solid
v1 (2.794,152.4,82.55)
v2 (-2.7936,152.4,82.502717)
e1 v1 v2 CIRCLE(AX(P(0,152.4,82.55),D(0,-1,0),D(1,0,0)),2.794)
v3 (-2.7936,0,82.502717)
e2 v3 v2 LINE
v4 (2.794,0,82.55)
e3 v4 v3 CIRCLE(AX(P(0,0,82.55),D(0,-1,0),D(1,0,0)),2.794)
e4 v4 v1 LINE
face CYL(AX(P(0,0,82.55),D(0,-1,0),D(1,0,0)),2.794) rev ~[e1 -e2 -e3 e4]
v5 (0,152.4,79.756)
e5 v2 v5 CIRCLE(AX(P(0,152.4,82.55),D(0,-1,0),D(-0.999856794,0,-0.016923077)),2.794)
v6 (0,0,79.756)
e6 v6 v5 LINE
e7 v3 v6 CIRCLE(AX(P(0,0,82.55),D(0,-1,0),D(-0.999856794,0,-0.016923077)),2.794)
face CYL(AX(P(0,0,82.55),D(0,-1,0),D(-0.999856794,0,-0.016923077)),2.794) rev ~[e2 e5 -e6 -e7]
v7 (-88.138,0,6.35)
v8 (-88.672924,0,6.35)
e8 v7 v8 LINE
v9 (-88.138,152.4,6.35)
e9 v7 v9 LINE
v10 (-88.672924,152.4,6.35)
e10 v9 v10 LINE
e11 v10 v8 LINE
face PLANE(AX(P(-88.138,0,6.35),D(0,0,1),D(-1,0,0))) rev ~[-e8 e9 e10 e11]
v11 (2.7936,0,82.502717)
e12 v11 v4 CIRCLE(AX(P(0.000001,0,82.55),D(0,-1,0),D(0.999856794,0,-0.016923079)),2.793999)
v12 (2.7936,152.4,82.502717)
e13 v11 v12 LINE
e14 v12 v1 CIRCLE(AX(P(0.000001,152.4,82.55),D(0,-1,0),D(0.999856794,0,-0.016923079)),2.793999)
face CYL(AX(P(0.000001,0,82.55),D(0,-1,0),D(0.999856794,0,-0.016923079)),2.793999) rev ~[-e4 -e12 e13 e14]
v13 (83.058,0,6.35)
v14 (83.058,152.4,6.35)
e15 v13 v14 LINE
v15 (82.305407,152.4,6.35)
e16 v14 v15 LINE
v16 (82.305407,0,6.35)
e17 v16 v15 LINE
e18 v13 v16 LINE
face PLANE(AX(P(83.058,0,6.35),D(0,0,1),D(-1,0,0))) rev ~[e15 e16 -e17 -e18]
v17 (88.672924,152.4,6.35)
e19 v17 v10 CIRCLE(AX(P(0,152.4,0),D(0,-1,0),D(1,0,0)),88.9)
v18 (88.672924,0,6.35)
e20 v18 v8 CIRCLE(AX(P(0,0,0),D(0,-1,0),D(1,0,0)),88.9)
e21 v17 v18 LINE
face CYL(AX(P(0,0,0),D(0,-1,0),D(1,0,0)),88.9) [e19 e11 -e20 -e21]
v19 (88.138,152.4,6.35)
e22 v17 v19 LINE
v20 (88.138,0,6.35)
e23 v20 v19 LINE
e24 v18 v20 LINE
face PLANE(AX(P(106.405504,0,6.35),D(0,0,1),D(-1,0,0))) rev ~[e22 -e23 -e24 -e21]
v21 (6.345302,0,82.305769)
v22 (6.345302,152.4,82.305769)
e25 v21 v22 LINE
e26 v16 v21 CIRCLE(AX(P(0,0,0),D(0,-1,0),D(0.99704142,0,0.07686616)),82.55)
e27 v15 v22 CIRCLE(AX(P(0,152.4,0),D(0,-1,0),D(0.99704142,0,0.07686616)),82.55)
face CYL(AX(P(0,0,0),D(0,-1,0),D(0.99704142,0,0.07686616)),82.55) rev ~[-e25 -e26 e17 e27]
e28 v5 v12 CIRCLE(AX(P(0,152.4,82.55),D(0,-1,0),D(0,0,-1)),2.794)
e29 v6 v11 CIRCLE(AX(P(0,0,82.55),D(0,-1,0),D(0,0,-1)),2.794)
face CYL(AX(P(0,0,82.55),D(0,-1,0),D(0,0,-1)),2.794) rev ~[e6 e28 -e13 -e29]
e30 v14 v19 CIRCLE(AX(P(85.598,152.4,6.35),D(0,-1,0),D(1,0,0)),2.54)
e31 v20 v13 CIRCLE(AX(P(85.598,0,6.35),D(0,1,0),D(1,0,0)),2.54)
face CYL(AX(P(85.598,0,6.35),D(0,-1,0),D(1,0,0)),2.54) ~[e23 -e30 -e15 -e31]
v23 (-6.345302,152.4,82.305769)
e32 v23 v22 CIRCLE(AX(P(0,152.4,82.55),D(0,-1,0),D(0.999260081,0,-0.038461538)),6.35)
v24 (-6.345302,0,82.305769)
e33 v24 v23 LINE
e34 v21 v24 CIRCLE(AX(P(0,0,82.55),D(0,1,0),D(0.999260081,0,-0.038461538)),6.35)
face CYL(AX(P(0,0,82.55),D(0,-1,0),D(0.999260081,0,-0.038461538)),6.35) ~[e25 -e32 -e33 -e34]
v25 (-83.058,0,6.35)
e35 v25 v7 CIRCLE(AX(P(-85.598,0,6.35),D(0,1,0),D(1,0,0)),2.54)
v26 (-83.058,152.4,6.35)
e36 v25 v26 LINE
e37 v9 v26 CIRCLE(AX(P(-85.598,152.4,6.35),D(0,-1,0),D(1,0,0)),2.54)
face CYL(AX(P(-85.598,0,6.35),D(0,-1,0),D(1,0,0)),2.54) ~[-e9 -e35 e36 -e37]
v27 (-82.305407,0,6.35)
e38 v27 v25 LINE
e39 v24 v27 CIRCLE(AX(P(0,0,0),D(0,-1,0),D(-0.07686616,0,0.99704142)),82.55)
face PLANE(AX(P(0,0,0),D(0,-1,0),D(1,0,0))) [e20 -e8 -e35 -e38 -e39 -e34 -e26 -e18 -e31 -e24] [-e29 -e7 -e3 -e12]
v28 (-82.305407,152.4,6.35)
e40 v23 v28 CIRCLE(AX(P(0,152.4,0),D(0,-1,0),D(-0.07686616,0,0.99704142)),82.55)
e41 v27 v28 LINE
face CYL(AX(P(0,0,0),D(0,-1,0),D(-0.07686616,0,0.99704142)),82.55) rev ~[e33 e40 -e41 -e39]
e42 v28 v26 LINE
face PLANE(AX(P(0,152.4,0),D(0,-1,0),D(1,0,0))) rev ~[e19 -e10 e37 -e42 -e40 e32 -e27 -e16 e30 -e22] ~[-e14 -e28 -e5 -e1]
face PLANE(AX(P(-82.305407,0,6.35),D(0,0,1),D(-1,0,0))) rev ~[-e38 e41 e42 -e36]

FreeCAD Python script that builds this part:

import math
import FreeCAD as App
import Part
import Sketcher

V = App.Vector
Q = App.Units.Quantity

doc = App.newDocument("Part")
params = doc.addObject("Spreadsheet::Sheet", "Params")
for row, (alias, value) in enumerate([
    ("sketch1_diameter", "7 in"),
    ("pad1_length", "6 in"),
    ("sketch2_radius", "0.25 in"),
    ("sketch2_radius2", "3.25 in"),
    ("sketch3_radius", "0.11 in"),
    ("sketch4_radius", "0.1 in"),
    ("sketch4_radius2", "0.25 in"),
    ("sketch4_radius3", "3.25 in"),
    ("sketch4_width", "0.03 in"),
    ("sketch4_height", "0.25 in"),
], start=1):
    params.set(f"A{row}", alias)
    params.set(f"B{row}", "=" + value)
    params.setAlias(f"B{row}", alias)

body = doc.addObject("PartDesign::Body", "Body")

sketch1 = body.newObject("Sketcher::SketchObject", "Sketch")
sketch1.AttachmentSupport = (doc.getObject("XZ_Plane"), [""])
sketch1.MapMode = "FlatFace"
sketch1.addGeometry(Part.Circle(V(0, 0, 0), V(0, 0, 1), 88.9), False)
sketch1.addConstraint([
    Sketcher.Constraint("Coincident", 0, 3, -1, 1),
    Sketcher.Constraint("Diameter", 0, Q("7 in")),
])
sketch1.setExpression("Constraints[1]", "Params.sketch1_diameter")
pad1 = body.newObject("PartDesign::Pad", "Pad")
pad1.Profile = sketch1
pad1.setExpression("Length", "Params.pad1_length")
pad1.Reversed = True

sketch2 = body.newObject("Sketcher::SketchObject", "Sketch001")
sketch2.AttachmentSupport = (doc.getObject("XZ_Plane"), [""])
sketch2.MapMode = "FlatFace"
sketch2.addGeometry([
    Part.ArcOfCircle(Part.Circle(V(0, 82.55, 0), V(0, 0, 1), 6.35), math.radians(-177.795772), math.radians(-2.204228)),
    Part.ArcOfCircle(Part.Circle(V(0, 0, 0), V(0, 0, 1), 82.55), math.radians(94.408455), math.radians(175.591545)),
    Part.ArcOfCircle(Part.Circle(V(-82.55, 0, 0), V(0, 0, 1), 6.35), math.radians(0), math.radians(87.795772)),
    Part.ArcOfCircle(Part.Circle(V(-82.55, 0, 0), V(0, 0, 1), 6.35), math.radians(-87.795772), math.radians(0)),
    Part.ArcOfCircle(Part.Circle(V(0, 0, 0), V(0, 0, 1), 82.55), math.radians(-175.591545), math.radians(-94.408455)),
    Part.ArcOfCircle(Part.Circle(V(0, -82.55, 0), V(0, 0, 1), 6.35), math.radians(2.204228), math.radians(177.795772)),
    Part.ArcOfCircle(Part.Circle(V(0, 0, 0), V(0, 0, 1), 82.55), math.radians(-85.591545), math.radians(-4.408455)),
    Part.ArcOfCircle(Part.Circle(V(82.55, 0, 0), V(0, 0, 1), 6.35), math.radians(92.204228), math.radians(267.795772)),
    Part.ArcOfCircle(Part.Circle(V(0, 0, 0), V(0, 0, 1), 82.55), math.radians(4.408455), math.radians(85.591545)),
], False)
sketch2.addConstraint([
    Sketcher.Constraint("Coincident", 0, 1, 1, 1),
    Sketcher.Constraint("Coincident", 1, 2, 2, 2),
    Sketcher.Constraint("Tangent", 2, 1, 3, 2),
    Sketcher.Constraint("Coincident", 3, 1, 4, 1),
    Sketcher.Constraint("Coincident", 4, 2, 5, 2),
    Sketcher.Constraint("Coincident", 5, 1, 6, 1),
    Sketcher.Constraint("Coincident", 6, 2, 7, 2),
    Sketcher.Constraint("Coincident", 7, 1, 8, 1),
    Sketcher.Constraint("Coincident", 8, 2, 0, 2),
    Sketcher.Constraint("Coincident", 1, 3, -1, 1),
    Sketcher.Constraint("Coincident", 4, 3, -1, 1),
    Sketcher.Constraint("Coincident", 6, 3, -1, 1),
    Sketcher.Constraint("Coincident", 8, 3, -1, 1),
    Sketcher.Constraint("Equal", 0, 2),
    Sketcher.Constraint("Equal", 2, 3),
    Sketcher.Constraint("Equal", 1, 4),
    Sketcher.Constraint("Equal", 3, 5),
    Sketcher.Constraint("Equal", 4, 6),
    Sketcher.Constraint("Equal", 5, 7),
    Sketcher.Constraint("Equal", 6, 8),
    Sketcher.Constraint("Symmetric", 0, 3, 5, 3, -1, 1),
    Sketcher.Constraint("Symmetric", 2, 3, 7, 3, -1, 1),
    Sketcher.Constraint("PointOnObject", 0, 3, -2),
    Sketcher.Constraint("PointOnObject", 2, 3, -1),
    Sketcher.Constraint("PointOnObject", 2, 1, -1),
    Sketcher.Constraint("Radius", 0, Q("0.25 in")),
    Sketcher.Constraint("Radius", 1, Q("3.25 in")),
    Sketcher.Constraint("DistanceX", 2, 1, -1, 1, Q("3 in")),
    Sketcher.Constraint("DistanceY", 5, 3, 0, 3, Q("6.5 in")),
])
sketch2.setExpression("Constraints[25]", "Params.sketch2_radius")
sketch2.setExpression("Constraints[26]", "Params.sketch2_radius2")
pocket1 = body.newObject("PartDesign::Pocket", "Pocket")
pocket1.Profile = sketch2
pocket1.Type = "ThroughAll"

sketch3 = body.newObject("Sketcher::SketchObject", "Sketch002")
sketch3.AttachmentSupport = (doc.getObject("XZ_Plane"), [""])
sketch3.MapMode = "FlatFace"
sketch3.addGeometry([
    Part.ArcOfCircle(Part.Circle(V(0, 82.55, 0), V(0, 0, 1), 2.794), math.radians(-179.030333), math.radians(-90)),
    Part.ArcOfCircle(Part.Circle(V(0, 82.55, 0), V(0, 0, 1), 2.794), math.radians(-90), math.radians(-0.969667)),
    Part.ArcOfCircle(Part.Circle(V(0.000001, 82.55, 0), V(0, 0, 1), 2.793999), math.radians(-0.969667), math.radians(0)),
    Part.ArcOfCircle(Part.Circle(V(0, 82.55, 0), V(0, 0, 1), 2.794), math.radians(0), math.radians(180.969667)),
    Part.ArcOfCircle(Part.Circle(V(-82.55, 0, 0), V(0, 0, 1), 2.794), math.radians(89.030333), math.radians(270.969667)),
    Part.ArcOfCircle(Part.Circle(V(-82.55, 0, 0), V(0, 0, 1), 2.794), math.radians(-89.030333), math.radians(0)),
    Part.ArcOfCircle(Part.Circle(V(-82.55, 0, 0), V(0, 0, 1), 2.794), math.radians(0), math.radians(89.030333)),
    Part.ArcOfCircle(Part.Circle(V(82.55, 0, 0), V(0, 0, 1), 2.794), math.radians(180), math.radians(269.030333)),
    Part.ArcOfCircle(Part.Circle(V(82.55, 0, 0), V(0, 0, 1), 2.794), math.radians(-90.969667), math.radians(0)),
    Part.ArcOfCircle(Part.Circle(V(82.55, 0, 0), V(0, 0, 1), 2.794), math.radians(0), math.radians(90.969667)),
    Part.ArcOfCircle(Part.Circle(V(82.55, 0, 0), V(0, 0, 1), 2.794), math.radians(90.969667), math.radians(180)),
    Part.ArcOfCircle(Part.Circle(V(0.000001, -82.55, 0), V(0, 0, 1), 2.793999), math.radians(0), math.radians(0.969667)),
    Part.ArcOfCircle(Part.Circle(V(0, -82.55, 0), V(0, 0, 1), 2.794), math.radians(0.969667), math.radians(90)),
    Part.ArcOfCircle(Part.Circle(V(0, -82.55, 0), V(0, 0, 1), 2.794), math.radians(90), math.radians(179.030333)),
    Part.ArcOfCircle(Part.Circle(V(0, -82.55, 0), V(0, 0, 1), 2.794), math.radians(179.030333), math.radians(360)),
], False)
sketch3.addConstraint([
    Sketcher.Constraint("Tangent", 0, 2, 1, 1),
    Sketcher.Constraint("Tangent", 1, 2, 2, 1),
    Sketcher.Constraint("Tangent", 2, 2, 3, 1),
    Sketcher.Constraint("Tangent", 3, 2, 0, 1),
    Sketcher.Constraint("Tangent", 4, 2, 5, 1),
    Sketcher.Constraint("Tangent", 5, 2, 6, 1),
    Sketcher.Constraint("Tangent", 6, 2, 4, 1),
    Sketcher.Constraint("Tangent", 7, 2, 8, 1),
    Sketcher.Constraint("Tangent", 8, 2, 9, 1),
    Sketcher.Constraint("Tangent", 9, 2, 10, 1),
    Sketcher.Constraint("Tangent", 10, 2, 7, 1),
    Sketcher.Constraint("Tangent", 11, 2, 12, 1),
    Sketcher.Constraint("Tangent", 12, 2, 13, 1),
    Sketcher.Constraint("Tangent", 13, 2, 14, 1),
    Sketcher.Constraint("Tangent", 14, 2, 11, 1),
    Sketcher.Constraint("Equal", 0, 1),
    Sketcher.Constraint("Equal", 3, 4),
    Sketcher.Constraint("Equal", 6, 7),
    Sketcher.Constraint("Equal", 7, 8),
    Sketcher.Constraint("Equal", 10, 11),
    Sketcher.Constraint("Equal", 11, 12),
    Sketcher.Constraint("Symmetric", 4, 3, 7, 3, -1, 1),
    Sketcher.Constraint("Symmetric", 0, 3, 11, 3, -1, 1),
    Sketcher.Constraint("Symmetric", 1, 2, 3, 2, -2),
    Sketcher.Constraint("Symmetric", 4, 2, 7, 2, -2),
    Sketcher.Constraint("PointOnObject", 0, 2, -2),
    Sketcher.Constraint("PointOnObject", 5, 2, -1),
    Sketcher.Constraint("PointOnObject", 8, 2, -1),
    Sketcher.Constraint("PointOnObject", 10, 2, -1),
    Sketcher.Constraint("PointOnObject", 12, 2, -2),
    Sketcher.Constraint("Horizontal", 3, 3, 2, 2),
    Sketcher.Constraint("Horizontal", 6, 2, 9, 2),
    Sketcher.Constraint("Horizontal", 11, 2, 13, 2),
    Sketcher.Constraint("Horizontal", 13, 3, 14, 2),
    Sketcher.Constraint("Vertical", 4, 2, 6, 2),
    Sketcher.Constraint("Vertical", 1, 2, 11, 2),
    Sketcher.Constraint("Radius", 0, Q("0.11 in")),
    Sketcher.Constraint("DistanceX", 4, 3, 7, 3, Q("6.5 in")),
    Sketcher.Constraint("DistanceY", -1, 1, 0, 3, Q("3.25 in")),
    Sketcher.Constraint("DistanceX", -1, 1, 1, 2, 2.7936),
    Sketcher.Constraint("DistanceY", 4, 2, -1, 1, 2.7936),
])
sketch3.setExpression("Constraints[36]", "Params.sketch3_radius")
pocket2 = body.newObject("PartDesign::Pocket", "Pocket001")
pocket2.Profile = sketch3
pocket2.Type = "ThroughAll"

sketch4 = body.newObject("Sketcher::SketchObject", "Sketch003")
sketch4.AttachmentSupport = (doc.getObject("XZ_Plane"), [""])
sketch4.MapMode = "FlatFace"
sketch4.addGeometry([
    Part.ArcOfCircle(Part.Circle(V(82.55, 0, 0), V(0, 0, 1), 6.35), math.radians(180), math.radians(267.795772)),
    Part.ArcOfCircle(Part.Circle(V(0, 0, 0), V(0, 0, 1), 82.55), math.radians(-85.591545), math.radians(-4.408455)),
    Part.ArcOfCircle(Part.Circle(V(0, -82.55, 0), V(0, 0, 1), 6.35), math.radians(2.204228), math.radians(177.795772)),
    Part.ArcOfCircle(Part.Circle(V(0, 0, 0), V(0, 0, 1), 82.55), math.radians(-175.591545), math.radians(-94.408455)),
    Part.ArcOfCircle(Part.Circle(V(-82.55, 0, 0), V(0, 0, 1), 6.35), math.radians(-87.795772), math.radians(0)),
    Part.ArcOfCircle(Part.Circle(V(-82.55, 0, 0), V(0, 0, 1), 6.35), math.radians(0), math.radians(87.795772)),
    Part.ArcOfCircle(Part.Circle(V(0.063521, -0.004899, 0), V(0, 0, 1), 82.61371), math.radians(175.588275), math.radians(175.591544)),
    Part.LineSegment(V(-82.305407, 6.35, 0), V(-83.058, 6.35, 0)),
    Part.ArcOfCircle(Part.Circle(V(-85.598, 6.35, 0), V(0, 0, 1), 2.54), math.radians(180), math.radians(360)),
    Part.LineSegment(V(-88.138, 6.35, 0), V(-88.9, 6.35, 0)),
    Part.LineSegment(V(-88.9, 6.35, 0), V(-88.9, 0, 0)),
    Part.LineSegment(V(-88.9, 0, 0), V(-104.893667, -139.878324, 0)),
    Part.LineSegment(V(-104.893667, -139.878324, 0), V(114.975105, -122.241944, 0)),
    Part.LineSegment(V(114.975105, -122.241944, 0), V(179.333255, -117.079571, 0)),
    Part.LineSegment(V(179.333255, -117.079571, 0), V(106.405504, 6.35, 0)),
    Part.LineSegment(V(106.405504, 6.35, 0), V(88.138, 6.35, 0)),
    Part.ArcOfCircle(Part.Circle(V(85.598, 6.35, 0), V(0, 0, 1), 2.54), math.radians(180), math.radians(360)),
    Part.LineSegment(V(83.058, 6.35, 0), V(82.305407, 6.35, 0)),
    Part.ArcOfCircle(Part.Circle(V(-0.063498, -0.004897, 0), V(0, 0, 1), 82.613687), math.radians(4.408456), math.radians(4.411725)),
    Part.ArcOfCircle(Part.Circle(V(82.55, 0, 0), V(0, 0, 1), 6.35), math.radians(92.204228), math.radians(180)),
], False)
sketch4.addConstraint([
    Sketcher.Constraint("Coincident", 0, 2, 1, 2),
    Sketcher.Constraint("Coincident", 1, 1, 2, 1),
    Sketcher.Constraint("Coincident", 2, 2, 3, 2),
    Sketcher.Constraint("Coincident", 3, 1, 4, 1),
    Sketcher.Constraint("Tangent", 4, 2, 5, 1),
    Sketcher.Constraint("Coincident", 5, 2, 6, 2),
    Sketcher.Constraint("Coincident", 6, 1, 7, 1),
    Sketcher.Constraint("Coincident", 7, 2, 8, 2),
    Sketcher.Constraint("Coincident", 8, 1, 9, 1),
    Sketcher.Constraint("Coincident", 9, 2, 10, 1),
    Sketcher.Constraint("Coincident", 10, 2, 11, 1),
    Sketcher.Constraint("Coincident", 11, 2, 12, 1),
    Sketcher.Constraint("Coincident", 12, 2, 13, 1),
    Sketcher.Constraint("Coincident", 13, 2, 14, 1),
    Sketcher.Constraint("Coincident", 14, 2, 15, 1),
    Sketcher.Constraint("Coincident", 15, 2, 16, 2),
    Sketcher.Constraint("Coincident", 16, 1, 17, 1),
    Sketcher.Constraint("Coincident", 17, 2, 18, 2),
    Sketcher.Constraint("Coincident", 18, 1, 19, 1),
    Sketcher.Constraint("Tangent", 19, 2, 0, 1),
    Sketcher.Constraint("Horizontal", 7),
    Sketcher.Constraint("Horizontal", 9),
    Sketcher.Constraint("Vertical", 10),
    Sketcher.Constraint("Horizontal", 15),
    Sketcher.Constraint("Horizontal", 17),
    Sketcher.Constraint("Coincident", 1, 3, -1, 1),
    Sketcher.Constraint("Coincident", 3, 3, -1, 1),
    Sketcher.Constraint("Equal", 0, 2),
    Sketcher.Constraint("Equal", 1, 3),
    Sketcher.Constraint("Equal", 2, 4),
    Sketcher.Constraint("Equal", 4, 5),
    Sketcher.Constraint("Equal", 8, 16),
    Sketcher.Constraint("Equal", 5, 19),
    Sketcher.Constraint("Symmetric", 0, 3, 4, 3, -1, 1),
    Sketcher.Constraint("Symmetric", 8, 3, 16, 3, -2),
    Sketcher.Constraint("Symmetric", 6, 1, 17, 2, -2),
    Sketcher.Constraint("Symmetric", 3, 1, 5, 2, -1),
    Sketcher.Constraint("PointOnObject", 2, 3, -2),
    Sketcher.Constraint("PointOnObject", 4, 2, -1),
    Sketcher.Constraint("PointOnObject", 10, 2, -1),
    Sketcher.Constraint("PointOnObject", 19, 2, -1),
    Sketcher.Constraint("Parallel", 12, 13),
    Sketcher.Constraint("Horizontal", 6, 3, 18, 3),
    Sketcher.Constraint("Horizontal", 16, 3, 6, 1),
    Sketcher.Constraint("Horizontal", 7, 2, 8, 1),
    Sketcher.Constraint("Horizontal", 9, 2, 14, 2),
    Sketcher.Constraint("Radius", 8, Q("0.1 in")),
    Sketcher.Constraint("Radius", 0, Q("0.25 in")),
    Sketcher.Constraint("Radius", 1, Q("3.25 in")),
    Sketcher.Constraint("DistanceX", 4, 2, -1, 1, Q("3 in")),
    Sketcher.Constraint("DistanceX", 9, 2, 9, 1, Q("0.03 in")),
    Sketcher.Constraint("DistanceY", 10, 2, 10, 1, Q("0.25 in")),
    Sketcher.Constraint("DistanceX", 9, 2, -1, 1, Q("3.5 in")),
    Sketcher.Constraint("DistanceY", 2, 3, 16, 3, Q("3.5 in")),
    Sketcher.Constraint("Radius", 6, 82.61371),
    Sketcher.Constraint("DistanceX", 18, 3, -1, 1, Q("0.0024999 in")),
    Sketcher.Constraint("Radius", 18, 82.613687),
    Sketcher.Constraint("Distance", 11, 140.789711),
    Sketcher.Constraint("DistanceX", 15, 2, 15, 1, 18.267504),
    Sketcher.Constraint("DistanceY", 13, 2, -1, 1, 117.079571),
    Sketcher.Constraint("DistanceX", 11, 2, 1, 1, 111.238968),
    Sketcher.Constraint("DistanceX", 12, 2, 13, 2, 64.35815),
    Sketcher.Constraint("Distance", 12, 220.574973),
])
sketch4.setExpression("Constraints[46]", "Params.sketch4_radius")
sketch4.setExpression("Constraints[47]", "Params.sketch4_radius2")
sketch4.setExpression("Constraints[48]", "Params.sketch4_radius3")
sketch4.setExpression("Constraints[50]", "Params.sketch4_width")
sketch4.setExpression("Constraints[51]", "Params.sketch4_height")
pocket3 = body.newObject("PartDesign::Pocket", "Pocket002")
pocket3.Profile = sketch4
pocket3.Type = "ThroughAll"

doc.recompute()
